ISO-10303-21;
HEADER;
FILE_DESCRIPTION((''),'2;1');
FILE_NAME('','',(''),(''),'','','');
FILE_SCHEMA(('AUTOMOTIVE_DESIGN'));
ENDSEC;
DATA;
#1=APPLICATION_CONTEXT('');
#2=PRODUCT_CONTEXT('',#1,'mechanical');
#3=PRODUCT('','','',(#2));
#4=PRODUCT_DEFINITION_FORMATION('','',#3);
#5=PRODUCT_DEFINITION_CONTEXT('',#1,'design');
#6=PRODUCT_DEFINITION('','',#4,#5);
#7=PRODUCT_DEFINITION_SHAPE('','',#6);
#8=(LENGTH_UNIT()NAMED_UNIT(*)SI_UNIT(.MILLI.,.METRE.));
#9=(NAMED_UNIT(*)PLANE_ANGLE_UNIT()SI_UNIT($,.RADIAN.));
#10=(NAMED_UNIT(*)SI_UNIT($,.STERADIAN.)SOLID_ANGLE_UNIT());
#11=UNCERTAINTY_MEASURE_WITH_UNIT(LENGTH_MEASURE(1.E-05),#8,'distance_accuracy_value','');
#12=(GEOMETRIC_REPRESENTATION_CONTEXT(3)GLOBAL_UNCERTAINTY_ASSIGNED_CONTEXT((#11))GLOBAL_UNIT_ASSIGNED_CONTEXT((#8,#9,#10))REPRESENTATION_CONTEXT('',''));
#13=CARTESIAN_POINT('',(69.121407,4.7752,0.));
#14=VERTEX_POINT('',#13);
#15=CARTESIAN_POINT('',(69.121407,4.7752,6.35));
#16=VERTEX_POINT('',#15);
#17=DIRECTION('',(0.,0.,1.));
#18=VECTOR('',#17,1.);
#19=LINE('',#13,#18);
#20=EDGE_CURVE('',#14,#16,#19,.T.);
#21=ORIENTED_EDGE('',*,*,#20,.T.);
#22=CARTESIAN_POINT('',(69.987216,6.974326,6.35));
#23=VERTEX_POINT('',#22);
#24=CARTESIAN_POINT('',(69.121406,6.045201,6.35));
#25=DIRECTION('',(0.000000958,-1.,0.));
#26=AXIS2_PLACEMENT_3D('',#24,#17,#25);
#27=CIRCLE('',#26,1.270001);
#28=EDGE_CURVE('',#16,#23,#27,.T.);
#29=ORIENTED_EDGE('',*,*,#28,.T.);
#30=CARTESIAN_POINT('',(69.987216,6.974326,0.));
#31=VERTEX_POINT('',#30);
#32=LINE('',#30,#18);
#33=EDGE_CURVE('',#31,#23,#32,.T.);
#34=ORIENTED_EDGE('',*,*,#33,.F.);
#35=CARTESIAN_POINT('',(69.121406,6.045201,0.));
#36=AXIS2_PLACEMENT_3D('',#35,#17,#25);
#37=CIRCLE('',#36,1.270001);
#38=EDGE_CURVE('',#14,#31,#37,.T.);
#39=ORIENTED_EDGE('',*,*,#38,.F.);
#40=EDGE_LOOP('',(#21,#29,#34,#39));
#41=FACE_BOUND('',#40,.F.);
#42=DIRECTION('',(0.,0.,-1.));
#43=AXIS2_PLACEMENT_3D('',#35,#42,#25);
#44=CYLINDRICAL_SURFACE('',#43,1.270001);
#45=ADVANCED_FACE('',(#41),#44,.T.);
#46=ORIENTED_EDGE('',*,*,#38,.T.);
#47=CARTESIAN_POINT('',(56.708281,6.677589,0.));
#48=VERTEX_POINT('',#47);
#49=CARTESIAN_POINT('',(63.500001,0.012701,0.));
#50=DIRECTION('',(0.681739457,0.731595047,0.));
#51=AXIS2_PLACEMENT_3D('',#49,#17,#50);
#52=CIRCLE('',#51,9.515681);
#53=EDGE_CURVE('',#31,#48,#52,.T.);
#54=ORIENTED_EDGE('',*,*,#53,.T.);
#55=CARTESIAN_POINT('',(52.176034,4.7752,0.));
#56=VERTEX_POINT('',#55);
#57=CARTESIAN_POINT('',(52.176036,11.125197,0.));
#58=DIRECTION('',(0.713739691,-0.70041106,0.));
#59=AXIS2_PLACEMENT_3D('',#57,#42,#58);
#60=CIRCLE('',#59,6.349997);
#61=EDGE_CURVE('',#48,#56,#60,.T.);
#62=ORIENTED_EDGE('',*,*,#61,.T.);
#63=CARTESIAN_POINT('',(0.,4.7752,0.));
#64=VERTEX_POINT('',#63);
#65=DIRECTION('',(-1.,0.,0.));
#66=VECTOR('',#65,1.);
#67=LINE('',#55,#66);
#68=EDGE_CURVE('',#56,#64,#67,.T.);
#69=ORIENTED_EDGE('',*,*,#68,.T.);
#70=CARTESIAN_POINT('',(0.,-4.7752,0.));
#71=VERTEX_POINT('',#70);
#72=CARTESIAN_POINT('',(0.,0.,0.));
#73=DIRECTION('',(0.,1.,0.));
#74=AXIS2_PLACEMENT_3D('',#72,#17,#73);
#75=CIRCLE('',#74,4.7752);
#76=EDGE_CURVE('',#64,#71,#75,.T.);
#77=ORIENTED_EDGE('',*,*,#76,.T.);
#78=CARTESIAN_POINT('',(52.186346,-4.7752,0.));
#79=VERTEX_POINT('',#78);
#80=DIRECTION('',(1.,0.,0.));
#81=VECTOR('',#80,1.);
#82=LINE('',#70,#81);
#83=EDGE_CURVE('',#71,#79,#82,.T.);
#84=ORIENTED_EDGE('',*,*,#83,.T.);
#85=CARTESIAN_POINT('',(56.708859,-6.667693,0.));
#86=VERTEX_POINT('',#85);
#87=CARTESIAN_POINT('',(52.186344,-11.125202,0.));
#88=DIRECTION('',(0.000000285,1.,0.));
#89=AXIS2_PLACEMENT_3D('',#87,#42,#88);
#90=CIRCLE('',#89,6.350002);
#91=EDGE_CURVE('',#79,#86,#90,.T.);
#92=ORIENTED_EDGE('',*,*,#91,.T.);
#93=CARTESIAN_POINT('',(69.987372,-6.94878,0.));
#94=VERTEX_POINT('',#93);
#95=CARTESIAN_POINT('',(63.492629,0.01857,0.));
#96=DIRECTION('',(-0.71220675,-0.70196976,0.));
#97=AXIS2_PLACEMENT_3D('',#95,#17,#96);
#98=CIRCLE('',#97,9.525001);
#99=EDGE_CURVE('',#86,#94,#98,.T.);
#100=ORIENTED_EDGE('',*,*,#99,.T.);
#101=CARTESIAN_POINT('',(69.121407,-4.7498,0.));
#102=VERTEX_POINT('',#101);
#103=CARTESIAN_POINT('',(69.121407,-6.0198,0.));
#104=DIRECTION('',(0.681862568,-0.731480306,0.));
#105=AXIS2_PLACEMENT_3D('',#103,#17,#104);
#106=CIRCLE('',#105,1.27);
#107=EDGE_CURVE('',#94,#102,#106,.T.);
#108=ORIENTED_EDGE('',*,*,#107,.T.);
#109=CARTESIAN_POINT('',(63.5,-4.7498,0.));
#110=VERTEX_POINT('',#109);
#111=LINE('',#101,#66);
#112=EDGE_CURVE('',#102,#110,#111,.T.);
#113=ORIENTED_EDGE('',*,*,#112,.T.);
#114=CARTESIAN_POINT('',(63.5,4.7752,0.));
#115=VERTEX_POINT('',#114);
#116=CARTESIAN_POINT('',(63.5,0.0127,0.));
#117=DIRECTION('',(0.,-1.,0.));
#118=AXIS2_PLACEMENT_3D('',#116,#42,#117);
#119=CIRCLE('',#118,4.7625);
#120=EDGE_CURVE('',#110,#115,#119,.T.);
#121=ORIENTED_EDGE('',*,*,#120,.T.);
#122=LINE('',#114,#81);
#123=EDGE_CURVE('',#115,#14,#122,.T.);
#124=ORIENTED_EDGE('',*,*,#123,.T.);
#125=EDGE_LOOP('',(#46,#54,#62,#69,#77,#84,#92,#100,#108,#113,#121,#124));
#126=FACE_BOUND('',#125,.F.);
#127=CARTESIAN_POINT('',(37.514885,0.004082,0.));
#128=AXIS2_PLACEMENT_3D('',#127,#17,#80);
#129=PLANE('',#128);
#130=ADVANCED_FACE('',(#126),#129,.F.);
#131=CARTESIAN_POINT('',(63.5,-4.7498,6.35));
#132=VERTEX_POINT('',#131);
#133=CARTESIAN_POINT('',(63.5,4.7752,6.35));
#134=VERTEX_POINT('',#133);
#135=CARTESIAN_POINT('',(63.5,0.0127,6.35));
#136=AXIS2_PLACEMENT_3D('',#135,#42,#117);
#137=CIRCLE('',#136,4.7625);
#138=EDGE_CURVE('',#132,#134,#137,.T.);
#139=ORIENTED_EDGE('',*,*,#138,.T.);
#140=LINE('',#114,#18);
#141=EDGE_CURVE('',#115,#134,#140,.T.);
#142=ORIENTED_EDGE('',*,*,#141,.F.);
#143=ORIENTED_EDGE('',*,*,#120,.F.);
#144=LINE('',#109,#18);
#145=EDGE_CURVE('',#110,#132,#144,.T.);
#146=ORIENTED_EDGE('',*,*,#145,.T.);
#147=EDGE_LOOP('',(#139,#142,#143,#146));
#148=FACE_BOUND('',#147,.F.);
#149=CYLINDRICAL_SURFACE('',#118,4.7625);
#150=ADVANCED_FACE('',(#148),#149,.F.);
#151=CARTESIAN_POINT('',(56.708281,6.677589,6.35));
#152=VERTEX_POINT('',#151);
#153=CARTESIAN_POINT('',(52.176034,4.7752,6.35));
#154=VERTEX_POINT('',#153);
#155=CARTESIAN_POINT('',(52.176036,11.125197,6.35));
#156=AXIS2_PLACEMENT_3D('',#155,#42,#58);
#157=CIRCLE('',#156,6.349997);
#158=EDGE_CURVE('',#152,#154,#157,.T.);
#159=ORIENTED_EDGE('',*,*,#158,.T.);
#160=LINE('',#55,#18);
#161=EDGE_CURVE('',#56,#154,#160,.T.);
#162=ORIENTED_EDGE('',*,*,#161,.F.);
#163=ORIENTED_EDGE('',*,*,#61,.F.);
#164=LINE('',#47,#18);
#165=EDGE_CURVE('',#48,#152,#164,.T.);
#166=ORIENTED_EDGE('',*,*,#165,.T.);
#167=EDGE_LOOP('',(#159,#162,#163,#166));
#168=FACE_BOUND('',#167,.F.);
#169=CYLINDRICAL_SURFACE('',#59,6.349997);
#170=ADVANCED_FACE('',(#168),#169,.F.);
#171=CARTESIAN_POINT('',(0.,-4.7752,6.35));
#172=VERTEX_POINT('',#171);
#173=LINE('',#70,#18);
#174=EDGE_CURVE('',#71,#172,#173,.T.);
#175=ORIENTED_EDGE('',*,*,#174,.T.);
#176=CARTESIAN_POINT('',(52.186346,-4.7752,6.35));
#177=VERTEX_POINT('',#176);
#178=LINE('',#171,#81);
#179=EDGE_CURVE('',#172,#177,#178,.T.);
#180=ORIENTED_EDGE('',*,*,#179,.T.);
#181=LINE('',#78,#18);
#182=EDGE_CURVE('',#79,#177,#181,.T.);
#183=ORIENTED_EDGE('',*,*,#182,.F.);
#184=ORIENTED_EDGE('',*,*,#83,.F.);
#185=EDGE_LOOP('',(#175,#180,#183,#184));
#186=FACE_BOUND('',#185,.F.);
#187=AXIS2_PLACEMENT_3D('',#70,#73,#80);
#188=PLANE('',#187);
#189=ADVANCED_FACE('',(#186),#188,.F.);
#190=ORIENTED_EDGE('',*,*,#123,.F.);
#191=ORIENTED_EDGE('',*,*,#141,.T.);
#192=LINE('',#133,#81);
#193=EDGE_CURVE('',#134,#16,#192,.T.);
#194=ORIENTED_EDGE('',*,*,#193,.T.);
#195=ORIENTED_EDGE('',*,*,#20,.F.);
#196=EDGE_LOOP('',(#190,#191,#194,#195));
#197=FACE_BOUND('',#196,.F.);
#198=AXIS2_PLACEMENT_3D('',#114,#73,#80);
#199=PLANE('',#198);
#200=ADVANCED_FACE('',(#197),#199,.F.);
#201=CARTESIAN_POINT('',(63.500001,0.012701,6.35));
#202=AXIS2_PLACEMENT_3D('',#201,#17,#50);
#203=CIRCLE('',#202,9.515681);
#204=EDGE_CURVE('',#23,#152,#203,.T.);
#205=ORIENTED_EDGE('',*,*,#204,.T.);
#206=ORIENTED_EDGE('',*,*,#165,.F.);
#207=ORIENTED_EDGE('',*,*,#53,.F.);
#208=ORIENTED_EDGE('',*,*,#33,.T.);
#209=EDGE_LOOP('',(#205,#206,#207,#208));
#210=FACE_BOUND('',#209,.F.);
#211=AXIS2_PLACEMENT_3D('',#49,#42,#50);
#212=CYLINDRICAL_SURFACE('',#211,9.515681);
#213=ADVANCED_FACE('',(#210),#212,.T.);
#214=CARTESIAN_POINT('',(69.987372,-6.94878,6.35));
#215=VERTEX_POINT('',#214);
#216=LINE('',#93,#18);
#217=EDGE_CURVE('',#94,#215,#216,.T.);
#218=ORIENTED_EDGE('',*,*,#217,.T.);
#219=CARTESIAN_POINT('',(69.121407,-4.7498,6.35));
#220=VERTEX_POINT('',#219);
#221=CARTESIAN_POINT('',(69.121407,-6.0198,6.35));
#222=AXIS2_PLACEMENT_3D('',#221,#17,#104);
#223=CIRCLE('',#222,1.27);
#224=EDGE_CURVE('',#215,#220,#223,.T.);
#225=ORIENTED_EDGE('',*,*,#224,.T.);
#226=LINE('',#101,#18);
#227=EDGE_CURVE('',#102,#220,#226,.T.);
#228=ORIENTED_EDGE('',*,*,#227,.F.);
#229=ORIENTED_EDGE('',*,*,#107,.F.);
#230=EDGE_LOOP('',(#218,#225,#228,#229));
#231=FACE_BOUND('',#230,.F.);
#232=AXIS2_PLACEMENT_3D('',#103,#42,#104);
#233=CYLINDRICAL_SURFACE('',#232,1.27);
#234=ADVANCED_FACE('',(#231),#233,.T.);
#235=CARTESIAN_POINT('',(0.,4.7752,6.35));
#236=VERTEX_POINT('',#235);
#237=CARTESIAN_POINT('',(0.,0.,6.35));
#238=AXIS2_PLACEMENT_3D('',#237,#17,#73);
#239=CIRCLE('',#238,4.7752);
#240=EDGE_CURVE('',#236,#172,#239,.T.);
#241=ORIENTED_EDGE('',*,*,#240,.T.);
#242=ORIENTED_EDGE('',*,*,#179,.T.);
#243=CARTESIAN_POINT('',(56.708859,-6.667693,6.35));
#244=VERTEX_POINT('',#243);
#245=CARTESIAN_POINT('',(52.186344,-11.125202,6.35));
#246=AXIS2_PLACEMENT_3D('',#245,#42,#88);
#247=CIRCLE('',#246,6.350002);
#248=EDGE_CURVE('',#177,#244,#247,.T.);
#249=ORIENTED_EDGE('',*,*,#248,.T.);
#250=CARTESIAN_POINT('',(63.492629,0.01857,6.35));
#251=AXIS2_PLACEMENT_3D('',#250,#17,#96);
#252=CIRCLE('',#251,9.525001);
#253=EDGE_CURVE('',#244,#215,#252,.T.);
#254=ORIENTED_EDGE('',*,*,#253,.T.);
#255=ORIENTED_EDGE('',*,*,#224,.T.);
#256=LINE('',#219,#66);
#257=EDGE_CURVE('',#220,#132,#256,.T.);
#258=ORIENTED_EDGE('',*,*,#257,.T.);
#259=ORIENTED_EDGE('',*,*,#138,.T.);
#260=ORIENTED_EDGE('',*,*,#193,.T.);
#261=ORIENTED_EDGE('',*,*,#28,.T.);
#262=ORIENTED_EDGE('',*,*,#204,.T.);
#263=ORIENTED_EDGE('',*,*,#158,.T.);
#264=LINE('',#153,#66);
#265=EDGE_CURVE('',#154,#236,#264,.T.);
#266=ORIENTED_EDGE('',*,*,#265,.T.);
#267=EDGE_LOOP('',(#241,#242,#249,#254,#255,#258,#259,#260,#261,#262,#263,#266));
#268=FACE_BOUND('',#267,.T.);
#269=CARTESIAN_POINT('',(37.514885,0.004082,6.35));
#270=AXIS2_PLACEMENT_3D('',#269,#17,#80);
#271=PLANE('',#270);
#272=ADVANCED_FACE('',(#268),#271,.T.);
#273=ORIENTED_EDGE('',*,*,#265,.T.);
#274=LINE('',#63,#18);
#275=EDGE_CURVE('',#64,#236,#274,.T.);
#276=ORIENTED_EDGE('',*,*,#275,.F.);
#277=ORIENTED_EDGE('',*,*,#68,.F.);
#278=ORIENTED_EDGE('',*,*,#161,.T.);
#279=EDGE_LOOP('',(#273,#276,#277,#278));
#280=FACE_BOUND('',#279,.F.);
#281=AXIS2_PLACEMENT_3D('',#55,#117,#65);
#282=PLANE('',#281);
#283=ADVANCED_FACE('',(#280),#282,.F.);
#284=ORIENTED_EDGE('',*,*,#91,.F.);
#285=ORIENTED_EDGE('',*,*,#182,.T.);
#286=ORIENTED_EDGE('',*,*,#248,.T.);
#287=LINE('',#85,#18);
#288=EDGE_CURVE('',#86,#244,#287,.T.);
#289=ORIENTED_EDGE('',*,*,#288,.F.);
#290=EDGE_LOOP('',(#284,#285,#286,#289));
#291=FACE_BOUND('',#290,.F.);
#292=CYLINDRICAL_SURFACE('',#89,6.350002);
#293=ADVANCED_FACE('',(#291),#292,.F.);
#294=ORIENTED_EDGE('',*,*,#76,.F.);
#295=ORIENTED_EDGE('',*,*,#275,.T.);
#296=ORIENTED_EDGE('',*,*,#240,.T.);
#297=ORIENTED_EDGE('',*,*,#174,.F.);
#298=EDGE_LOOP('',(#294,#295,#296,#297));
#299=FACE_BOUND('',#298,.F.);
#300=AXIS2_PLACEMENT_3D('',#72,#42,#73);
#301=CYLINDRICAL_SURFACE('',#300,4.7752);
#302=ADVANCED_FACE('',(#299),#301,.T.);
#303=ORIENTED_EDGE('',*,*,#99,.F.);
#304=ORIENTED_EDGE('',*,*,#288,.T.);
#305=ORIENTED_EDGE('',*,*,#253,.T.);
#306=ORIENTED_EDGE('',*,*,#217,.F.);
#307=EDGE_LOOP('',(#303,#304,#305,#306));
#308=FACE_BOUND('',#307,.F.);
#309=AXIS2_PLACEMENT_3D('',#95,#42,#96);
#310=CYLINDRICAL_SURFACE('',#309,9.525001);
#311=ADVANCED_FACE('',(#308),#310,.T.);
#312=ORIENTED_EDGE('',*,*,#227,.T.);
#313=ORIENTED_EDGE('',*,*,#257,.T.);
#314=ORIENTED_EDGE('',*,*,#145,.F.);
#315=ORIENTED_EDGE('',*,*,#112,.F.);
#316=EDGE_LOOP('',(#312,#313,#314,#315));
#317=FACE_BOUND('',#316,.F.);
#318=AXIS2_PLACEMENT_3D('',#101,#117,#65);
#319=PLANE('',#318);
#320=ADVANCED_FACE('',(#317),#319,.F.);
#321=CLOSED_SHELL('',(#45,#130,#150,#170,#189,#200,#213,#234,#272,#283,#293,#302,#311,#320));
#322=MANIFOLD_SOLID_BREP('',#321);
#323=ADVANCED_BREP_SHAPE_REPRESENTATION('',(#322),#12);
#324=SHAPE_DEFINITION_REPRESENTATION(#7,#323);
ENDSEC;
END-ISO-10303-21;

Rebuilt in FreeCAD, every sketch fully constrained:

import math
import FreeCAD as App
import Part
import Sketcher

V = App.Vector
Q = App.Units.Quantity

doc = App.newDocument("Part")
body = doc.addObject("PartDesign::Body", "Body")

sketch1 = body.newObject("Sketcher::SketchObject", "Sketch")
sketch1.AttachmentSupport = (doc.getObject("XY_Plane"), [""])
sketch1.MapMode = "FlatFace"
sketch1.addGeometry(Part.ArcOfCircle(Part.Circle(V(0, 0, 0), V(0, 0, 1), 4.8), math.radians(90), math.radians(270)), False)
sketch1.addGeometry(Part.LineSegment(V(0, -4.8, 0), V(52.2, -4.8, 0)), False)
sketch1.addGeometry(Part.ArcOfCircle(Part.Circle(V(52.2, -11.1, 0), V(0, 0, 1), 6.4), math.radians(45), math.radians(90)), False)
sketch1.addGeometry(Part.ArcOfCircle(Part.Circle(V(63.5, 0, 0), V(0, 0, 1), 9.5), math.radians(-135), math.radians(-47)), False)
sketch1.addGeometry(Part.ArcOfCircle(Part.Circle(V(69.1, -6, 0), V(0, 0, 1), 1.3), math.radians(-47), math.radians(90)), False)
sketch1.addGeometry(Part.LineSegment(V(69.1, -4.7, 0), V(63.5, -4.7, 0)), False)
sketch1.addGeometry(Part.ArcOfCircle(Part.Circle(V(63.5, 0, 0), V(0, 0, 1), 4.8), math.radians(90), math.radians(270)), False)
sketch1.addGeometry(Part.LineSegment(V(63.5, 4.8, 0), V(69.1, 4.8, 0)), False)
sketch1.addGeometry(Part.ArcOfCircle(Part.Circle(V(69.1, 6, 0), V(0, 0, 1), 1.3), math.radians(-90), math.radians(47)), False)
sketch1.addGeometry(Part.ArcOfCircle(Part.Circle(V(63.5, 0, 0), V(0, 0, 1), 9.5), math.radians(47), math.radians(136)), False)
sketch1.addGeometry(Part.ArcOfCircle(Part.Circle(V(52.2, 11.1, 0), V(0, 0, 1), 6.3), math.radians(-90), math.radians(-44)), False)
sketch1.addGeometry(Part.LineSegment(V(52.2, 4.8, 0), V(0, 4.8, 0)), False)
sketch1.addConstraint(Sketcher.Constraint("Tangent", 0, 2, 1, 1))
sketch1.addConstraint(Sketcher.Constraint("Tangent", 1, 2, 2, 2))
sketch1.addConstraint(Sketcher.Constraint("Tangent", 2, 1, 3, 1))
sketch1.addConstraint(Sketcher.Constraint("Tangent", 3, 2, 4, 1))
sketch1.addConstraint(Sketcher.Constraint("Tangent", 4, 2, 5, 1))
sketch1.addConstraint(Sketcher.Constraint("Tangent", 5, 2, 6, 2))
sketch1.addConstraint(Sketcher.Constraint("Tangent", 6, 1, 7, 1))
sketch1.addConstraint(Sketcher.Constraint("Tangent", 7, 2, 8, 1))
sketch1.addConstraint(Sketcher.Constraint("Tangent", 8, 2, 9, 1))
sketch1.addConstraint(Sketcher.Constraint("Tangent", 9, 2, 10, 2))
sketch1.addConstraint(Sketcher.Constraint("Tangent", 10, 1, 11, 1))
sketch1.addConstraint(Sketcher.Constraint("Tangent", 11, 2, 0, 1))
sketch1.addConstraint(Sketcher.Constraint("Horizontal", 1))
sketch1.addConstraint(Sketcher.Constraint("Horizontal", 5))
sketch1.addConstraint(Sketcher.Constraint("Horizontal", 7))
sketch1.addConstraint(Sketcher.Constraint("Horizontal", 11))
sketch1.addConstraint(Sketcher.Constraint("Coincident", 0, 3, -1, 1))
sketch1.addConstraint(Sketcher.Constraint("Coincident", 9, 3, 6, 3))
sketch1.addConstraint(Sketcher.Constraint("Equal", 4, 8))
sketch1.addConstraint(Sketcher.Constraint("Horizontal", 7, 2, 10, 1))
sketch1.addConstraint(Sketcher.Constraint("Vertical", 4, 3, 8, 3))
sketch1.addConstraint(Sketcher.Constraint("Radius", 2, Q("0.2500001 in")))
sketch1.addConstraint(Sketcher.Constraint("Radius", 4, Q("0.05 in")))
sketch1.addConstraint(Sketcher.Constraint("Radius", 10, Q("0.2499999 in")))
sketch1.addConstraint(Sketcher.Constraint("Radius", 0, Q("0.188 in")))
sketch1.addConstraint(Sketcher.Constraint("Radius", 3, Q("0.375 in")))
sketch1.addConstraint(Sketcher.Constraint("Radius", 6, Q("0.1875 in")))
sketch1.addConstraint(Sketcher.Constraint("DistanceX", -1, 1, 6, 3, Q("2.5 in")))
sketch1.addConstraint(Sketcher.Constraint("Radius", 9, 9.515681))
sketch1.addConstraint(Sketcher.Constraint("DistanceX", 1, 1, 1, 2, 52.186346))
pad1 = body.newObject("PartDesign::Pad", "Pad")
pad1.Profile = sketch1
pad1.Length = Q("0.25 in")

doc.recompute()
